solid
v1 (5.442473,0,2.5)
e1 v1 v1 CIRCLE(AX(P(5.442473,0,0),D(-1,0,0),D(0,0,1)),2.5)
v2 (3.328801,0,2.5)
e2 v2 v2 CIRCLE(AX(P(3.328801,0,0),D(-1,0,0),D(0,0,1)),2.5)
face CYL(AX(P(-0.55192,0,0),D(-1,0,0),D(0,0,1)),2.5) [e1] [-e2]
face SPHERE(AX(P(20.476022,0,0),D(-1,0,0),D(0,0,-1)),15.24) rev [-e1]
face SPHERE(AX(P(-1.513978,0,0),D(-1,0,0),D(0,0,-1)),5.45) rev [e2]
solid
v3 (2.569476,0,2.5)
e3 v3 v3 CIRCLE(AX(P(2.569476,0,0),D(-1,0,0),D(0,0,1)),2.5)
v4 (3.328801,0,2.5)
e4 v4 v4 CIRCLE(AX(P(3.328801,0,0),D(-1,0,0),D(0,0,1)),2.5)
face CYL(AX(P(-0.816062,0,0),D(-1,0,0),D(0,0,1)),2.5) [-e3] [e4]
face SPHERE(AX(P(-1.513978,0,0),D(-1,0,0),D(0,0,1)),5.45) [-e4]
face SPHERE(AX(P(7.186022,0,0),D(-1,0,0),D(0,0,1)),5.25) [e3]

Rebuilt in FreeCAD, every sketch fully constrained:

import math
import FreeCAD as App
import Part
import Sketcher
from FreeCAD import Vector
Q = App.Units.Quantity

doc = App.newDocument("Part")
body = doc.addObject("PartDesign::Body", "Body")

# Sketch on XZ plane
sketch1 = doc.addObject("Sketcher::SketchObject", "Sketch")
body.addObject(sketch1)
sketch1.AttachmentSupport = (doc.XZ_Plane, [""])
sketch1.MapMode = "FlatFace"
sketch1.addGeometry(Part.ArcOfCircle(Part.Circle(Vector(7.2, 0, 0), Vector(0, 0, 1), 5.2), math.radians(180), math.radians(208)), False)
sketch1.addGeometry(Part.LineSegment(Vector(1.9, 0, 0), Vector(3.9, 0, 0)), False)
sketch1.addGeometry(Part.ArcOfCircle(Part.Circle(Vector(-1.5, 0, 0), Vector(0, 0, 1), 5.5), math.radians(-27), math.radians(0)), False)
sketch1.addGeometry(Part.LineSegment(Vector(3.3, -2.5, 0), Vector(2.6, -2.5, 0)), False)
sketch1.addConstraint(Sketcher.Constraint("Coincident", 0, 1, 1, 1))
sketch1.addConstraint(Sketcher.Constraint("Coincident", 1, 2, 2, 2))
sketch1.addConstraint(Sketcher.Constraint("Coincident", 2, 1, 3, 1))
sketch1.addConstraint(Sketcher.Constraint("Coincident", 3, 2, 0, 2))
sketch1.addConstraint(Sketcher.Constraint("Horizontal", 1))
sketch1.addConstraint(Sketcher.Constraint("Horizontal", 3))
sketch1.addConstraint(Sketcher.Constraint("PointOnObject", 0, 3, -1))
sketch1.addConstraint(Sketcher.Constraint("PointOnObject", 2, 3, -1))
sketch1.addConstraint(Sketcher.Constraint("PointOnObject", 0, 1, -1))
sketch1.addConstraint(Sketcher.Constraint("DistanceX", 1, 1, 1, 2, Q("2 mm")))
sketch1.addConstraint(Sketcher.Constraint("Radius", 0, Q("5.25 mm")))
sketch1.addConstraint(Sketcher.Constraint("Radius", 2, Q("5.45 mm")))
sketch1.addConstraint(Sketcher.Constraint("DistanceY", 2, 1, -1, 1, Q("2.5 mm")))
sketch1.addConstraint(Sketcher.Constraint("DistanceX", -1, 1, 2, 1, Q("3.328801 mm")))
revolution = doc.addObject("PartDesign::Revolution", "Revolution")
body.addObject(revolution)
revolution.Profile = sketch1
revolution.ReferenceAxis = (sketch1, ["H_Axis"])
revolution.Angle = 360
body2 = doc.addObject("PartDesign::Body", "Body001")

# Sketch on XZ plane
sketch2 = doc.addObject("Sketcher::SketchObject", "Sketch001")
body2.addObject(sketch2)
sketch2.AttachmentSupport = (doc.getObject("XZ_Plane001"), [""])
sketch2.MapMode = "FlatFace"
sketch2.addGeometry(Part.LineSegment(Vector(5.4, -2.5, 0), Vector(3.3, -2.5, 0)), False)
sketch2.addGeometry(Part.ArcOfCircle(Part.Circle(Vector(-1.5, 0, 0), Vector(0, 0, 1), 5.5), math.radians(-27), math.radians(0)), False)
sketch2.addGeometry(Part.LineSegment(Vector(3.9, 0, 0), Vector(5.2, 0, 0)), False)
sketch2.addGeometry(Part.ArcOfCircle(Part.Circle(Vector(20.5, 0, 0), Vector(0, 0, 1), 15.2), math.radians(180), math.radians(189.44)), False)
sketch2.addConstraint(Sketcher.Constraint("Coincident", 0, 2, 1, 1))
sketch2.addConstraint(Sketcher.Constraint("Coincident", 1, 2, 2, 1))
sketch2.addConstraint(Sketcher.Constraint("Coincident", 2, 2, 3, 1))
sketch2.addConstraint(Sketcher.Constraint("Coincident", 3, 2, 0, 1))
sketch2.addConstraint(Sketcher.Constraint("Horizontal", 0))
sketch2.addConstraint(Sketcher.Constraint("Horizontal", 2))
sketch2.addConstraint(Sketcher.Constraint("PointOnObject", 1, 3, -1))
sketch2.addConstraint(Sketcher.Constraint("PointOnObject", 3, 3, -1))
sketch2.addConstraint(Sketcher.Constraint("PointOnObject", 1, 2, -1))
sketch2.addConstraint(Sketcher.Constraint("Radius", 1, Q("5.45 mm")))
sketch2.addConstraint(Sketcher.Constraint("Radius", 3, Q("15.24 mm")))
sketch2.addConstraint(Sketcher.Constraint("DistanceX", 2, 1, 2, 2, Q("1.3 mm")))
sketch2.addConstraint(Sketcher.Constraint("DistanceY", 0, 2, -1, 1, Q("2.5 mm")))
sketch2.addConstraint(Sketcher.Constraint("DistanceX", -1, 1, 0, 2, Q("3.328801 mm")))
revolution2 = doc.addObject("PartDesign::Revolution", "Revolution001")
body2.addObject(revolution2)
revolution2.Profile = sketch2
revolution2.ReferenceAxis = (sketch2, ["H_Axis"])
revolution2.Angle = 360

doc.recompute()
